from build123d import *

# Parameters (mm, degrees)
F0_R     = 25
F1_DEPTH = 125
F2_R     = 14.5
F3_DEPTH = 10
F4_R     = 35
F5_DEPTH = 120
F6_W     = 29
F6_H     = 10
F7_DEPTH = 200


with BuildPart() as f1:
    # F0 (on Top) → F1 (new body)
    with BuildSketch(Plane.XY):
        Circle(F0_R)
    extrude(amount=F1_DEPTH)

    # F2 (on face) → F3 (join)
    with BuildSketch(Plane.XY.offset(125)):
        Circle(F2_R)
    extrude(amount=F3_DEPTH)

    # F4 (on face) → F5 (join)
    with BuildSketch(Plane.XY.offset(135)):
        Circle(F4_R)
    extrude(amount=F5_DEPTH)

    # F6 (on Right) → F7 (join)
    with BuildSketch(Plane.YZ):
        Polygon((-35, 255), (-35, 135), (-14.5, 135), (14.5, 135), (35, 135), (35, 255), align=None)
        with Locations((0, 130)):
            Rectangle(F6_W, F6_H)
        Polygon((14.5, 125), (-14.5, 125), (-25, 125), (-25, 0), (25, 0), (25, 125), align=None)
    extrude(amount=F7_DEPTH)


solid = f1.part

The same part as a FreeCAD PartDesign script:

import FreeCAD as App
import Part
import Sketcher


def add_polygon(sketch, points):
    """Adds a closed chain of lines whose ends are joined by coincident constraints."""
    first, n = sketch.GeometryCount, len(points)
    for a, b in zip(points, points[1:] + points[:1]):
        sketch.addGeometry(Part.LineSegment(App.Vector(*a, 0), App.Vector(*b, 0)), False)
    for i in range(n):
        sketch.addConstraint(Sketcher.Constraint("Coincident", first + i, 2, first + (i + 1) % n, 1))

doc = App.newDocument("Part")
body = doc.addObject("PartDesign::Body", "Body")

# Sketch on XY plane
sketch1 = body.newObject("Sketcher::SketchObject", "Sketch")
sketch1.AttachmentSupport = (doc.getObject("XY_Plane"), [""])
sketch1.MapMode = "FlatFace"
sketch1.addGeometry(Part.Circle(App.Vector(0, 0, 0), App.Vector(0, 0, 1), 25), False)
sketch1.addConstraint(Sketcher.Constraint("Coincident", 0, 3, -1, 1))
sketch1.addConstraint(Sketcher.Constraint("Diameter", 0, 50.0))
pad1 = body.newObject("PartDesign::Pad", "Pad")
pad1.Profile = sketch1
pad1.Length = 125

# Sketch on XY plane
sketch2 = body.newObject("Sketcher::SketchObject", "Sketch001")
sketch2.AttachmentSupport = (doc.getObject("XY_Plane"), [""])
sketch2.MapMode = "FlatFace"
sketch2.AttachmentOffset = App.Placement(App.Vector(0, 0, 125), App.Rotation())
sketch2.addGeometry(Part.Circle(App.Vector(0, 0, 0), App.Vector(0, 0, 1), 14), False)
sketch2.addConstraint(Sketcher.Constraint("Coincident", 0, 3, -1, 1))
sketch2.addConstraint(Sketcher.Constraint("Diameter", 0, 29.0))
pad2 = body.newObject("PartDesign::Pad", "Pad001")
pad2.Profile = sketch2
pad2.Length = 10

# Sketch on XY plane
sketch3 = body.newObject("Sketcher::SketchObject", "Sketch002")
sketch3.AttachmentSupport = (doc.getObject("XY_Plane"), [""])
sketch3.MapMode = "FlatFace"
sketch3.AttachmentOffset = App.Placement(App.Vector(0, 0, 135), App.Rotation())
sketch3.addGeometry(Part.Circle(App.Vector(0, 0, 0), App.Vector(0, 0, 1), 35), False)
sketch3.addConstraint(Sketcher.Constraint("Coincident", 0, 3, -1, 1))
sketch3.addConstraint(Sketcher.Constraint("Diameter", 0, 70.0))
pad3 = body.newObject("PartDesign::Pad", "Pad002")
pad3.Profile = sketch3
pad3.Length = 120

# Sketch on YZ plane
sketch4 = body.newObject("Sketcher::SketchObject", "Sketch003")
sketch4.AttachmentSupport = (doc.getObject("YZ_Plane"), [""])
sketch4.MapMode = "FlatFace"
add_polygon(sketch4, [(-35, 255), (-35, 135), (-14, 135), (-14, 125), (-25, 125), (-25, 0), (25, 0), (25, 125), (14, 125), (14, 135), (35, 135), (35, 255)])  # lines 0-11
sketch4.addConstraint(Sketcher.Constraint("Vertical", 0))
sketch4.addConstraint(Sketcher.Constraint("Horizontal", 1))
sketch4.addConstraint(Sketcher.Constraint("Vertical", 2))
sketch4.addConstraint(Sketcher.Constraint("Horizontal", 3))
sketch4.addConstraint(Sketcher.Constraint("Vertical", 4))
sketch4.addConstraint(Sketcher.Constraint("Horizontal", 5))
sketch4.addConstraint(Sketcher.Constraint("Vertical", 6))
sketch4.addConstraint(Sketcher.Constraint("Horizontal", 7))
sketch4.addConstraint(Sketcher.Constraint("Vertical", 8))
sketch4.addConstraint(Sketcher.Constraint("Horizontal", 9))
sketch4.addConstraint(Sketcher.Constraint("Vertical", 10))
sketch4.addConstraint(Sketcher.Constraint("Horizontal", 11))
sketch4.addConstraint(Sketcher.Constraint("Symmetric", 4, 2, 5, 2, -1, 1))
sketch4.addConstraint(Sketcher.Constraint("Symmetric", 2, 2, 7, 2, -2))
sketch4.addConstraint(Sketcher.Constraint("Symmetric", 0, 2, 9, 2, -2))
sketch4.addConstraint(Sketcher.Constraint("DistanceX", 5, 1, 5, 2, 50.0))
sketch4.addConstraint(Sketcher.Constraint("DistanceX", 11, 2, 11, 1, 70.0))
sketch4.addConstraint(Sketcher.Constraint("DistanceY", 0, 2, 0, 1, 120.0))
sketch4.addConstraint(Sketcher.Constraint("DistanceY", 2, 2, 2, 1, 10.0))
sketch4.addConstraint(Sketcher.Constraint("DistanceY", 4, 2, 4, 1, 125.0))
sketch4.addConstraint(Sketcher.Constraint("DistanceX", 1, 1, 1, 2, 20.5))
pad4 = body.newObject("PartDesign::Pad", "Pad003")
pad4.Profile = sketch4
pad4.Length = 200

doc.recompute()
